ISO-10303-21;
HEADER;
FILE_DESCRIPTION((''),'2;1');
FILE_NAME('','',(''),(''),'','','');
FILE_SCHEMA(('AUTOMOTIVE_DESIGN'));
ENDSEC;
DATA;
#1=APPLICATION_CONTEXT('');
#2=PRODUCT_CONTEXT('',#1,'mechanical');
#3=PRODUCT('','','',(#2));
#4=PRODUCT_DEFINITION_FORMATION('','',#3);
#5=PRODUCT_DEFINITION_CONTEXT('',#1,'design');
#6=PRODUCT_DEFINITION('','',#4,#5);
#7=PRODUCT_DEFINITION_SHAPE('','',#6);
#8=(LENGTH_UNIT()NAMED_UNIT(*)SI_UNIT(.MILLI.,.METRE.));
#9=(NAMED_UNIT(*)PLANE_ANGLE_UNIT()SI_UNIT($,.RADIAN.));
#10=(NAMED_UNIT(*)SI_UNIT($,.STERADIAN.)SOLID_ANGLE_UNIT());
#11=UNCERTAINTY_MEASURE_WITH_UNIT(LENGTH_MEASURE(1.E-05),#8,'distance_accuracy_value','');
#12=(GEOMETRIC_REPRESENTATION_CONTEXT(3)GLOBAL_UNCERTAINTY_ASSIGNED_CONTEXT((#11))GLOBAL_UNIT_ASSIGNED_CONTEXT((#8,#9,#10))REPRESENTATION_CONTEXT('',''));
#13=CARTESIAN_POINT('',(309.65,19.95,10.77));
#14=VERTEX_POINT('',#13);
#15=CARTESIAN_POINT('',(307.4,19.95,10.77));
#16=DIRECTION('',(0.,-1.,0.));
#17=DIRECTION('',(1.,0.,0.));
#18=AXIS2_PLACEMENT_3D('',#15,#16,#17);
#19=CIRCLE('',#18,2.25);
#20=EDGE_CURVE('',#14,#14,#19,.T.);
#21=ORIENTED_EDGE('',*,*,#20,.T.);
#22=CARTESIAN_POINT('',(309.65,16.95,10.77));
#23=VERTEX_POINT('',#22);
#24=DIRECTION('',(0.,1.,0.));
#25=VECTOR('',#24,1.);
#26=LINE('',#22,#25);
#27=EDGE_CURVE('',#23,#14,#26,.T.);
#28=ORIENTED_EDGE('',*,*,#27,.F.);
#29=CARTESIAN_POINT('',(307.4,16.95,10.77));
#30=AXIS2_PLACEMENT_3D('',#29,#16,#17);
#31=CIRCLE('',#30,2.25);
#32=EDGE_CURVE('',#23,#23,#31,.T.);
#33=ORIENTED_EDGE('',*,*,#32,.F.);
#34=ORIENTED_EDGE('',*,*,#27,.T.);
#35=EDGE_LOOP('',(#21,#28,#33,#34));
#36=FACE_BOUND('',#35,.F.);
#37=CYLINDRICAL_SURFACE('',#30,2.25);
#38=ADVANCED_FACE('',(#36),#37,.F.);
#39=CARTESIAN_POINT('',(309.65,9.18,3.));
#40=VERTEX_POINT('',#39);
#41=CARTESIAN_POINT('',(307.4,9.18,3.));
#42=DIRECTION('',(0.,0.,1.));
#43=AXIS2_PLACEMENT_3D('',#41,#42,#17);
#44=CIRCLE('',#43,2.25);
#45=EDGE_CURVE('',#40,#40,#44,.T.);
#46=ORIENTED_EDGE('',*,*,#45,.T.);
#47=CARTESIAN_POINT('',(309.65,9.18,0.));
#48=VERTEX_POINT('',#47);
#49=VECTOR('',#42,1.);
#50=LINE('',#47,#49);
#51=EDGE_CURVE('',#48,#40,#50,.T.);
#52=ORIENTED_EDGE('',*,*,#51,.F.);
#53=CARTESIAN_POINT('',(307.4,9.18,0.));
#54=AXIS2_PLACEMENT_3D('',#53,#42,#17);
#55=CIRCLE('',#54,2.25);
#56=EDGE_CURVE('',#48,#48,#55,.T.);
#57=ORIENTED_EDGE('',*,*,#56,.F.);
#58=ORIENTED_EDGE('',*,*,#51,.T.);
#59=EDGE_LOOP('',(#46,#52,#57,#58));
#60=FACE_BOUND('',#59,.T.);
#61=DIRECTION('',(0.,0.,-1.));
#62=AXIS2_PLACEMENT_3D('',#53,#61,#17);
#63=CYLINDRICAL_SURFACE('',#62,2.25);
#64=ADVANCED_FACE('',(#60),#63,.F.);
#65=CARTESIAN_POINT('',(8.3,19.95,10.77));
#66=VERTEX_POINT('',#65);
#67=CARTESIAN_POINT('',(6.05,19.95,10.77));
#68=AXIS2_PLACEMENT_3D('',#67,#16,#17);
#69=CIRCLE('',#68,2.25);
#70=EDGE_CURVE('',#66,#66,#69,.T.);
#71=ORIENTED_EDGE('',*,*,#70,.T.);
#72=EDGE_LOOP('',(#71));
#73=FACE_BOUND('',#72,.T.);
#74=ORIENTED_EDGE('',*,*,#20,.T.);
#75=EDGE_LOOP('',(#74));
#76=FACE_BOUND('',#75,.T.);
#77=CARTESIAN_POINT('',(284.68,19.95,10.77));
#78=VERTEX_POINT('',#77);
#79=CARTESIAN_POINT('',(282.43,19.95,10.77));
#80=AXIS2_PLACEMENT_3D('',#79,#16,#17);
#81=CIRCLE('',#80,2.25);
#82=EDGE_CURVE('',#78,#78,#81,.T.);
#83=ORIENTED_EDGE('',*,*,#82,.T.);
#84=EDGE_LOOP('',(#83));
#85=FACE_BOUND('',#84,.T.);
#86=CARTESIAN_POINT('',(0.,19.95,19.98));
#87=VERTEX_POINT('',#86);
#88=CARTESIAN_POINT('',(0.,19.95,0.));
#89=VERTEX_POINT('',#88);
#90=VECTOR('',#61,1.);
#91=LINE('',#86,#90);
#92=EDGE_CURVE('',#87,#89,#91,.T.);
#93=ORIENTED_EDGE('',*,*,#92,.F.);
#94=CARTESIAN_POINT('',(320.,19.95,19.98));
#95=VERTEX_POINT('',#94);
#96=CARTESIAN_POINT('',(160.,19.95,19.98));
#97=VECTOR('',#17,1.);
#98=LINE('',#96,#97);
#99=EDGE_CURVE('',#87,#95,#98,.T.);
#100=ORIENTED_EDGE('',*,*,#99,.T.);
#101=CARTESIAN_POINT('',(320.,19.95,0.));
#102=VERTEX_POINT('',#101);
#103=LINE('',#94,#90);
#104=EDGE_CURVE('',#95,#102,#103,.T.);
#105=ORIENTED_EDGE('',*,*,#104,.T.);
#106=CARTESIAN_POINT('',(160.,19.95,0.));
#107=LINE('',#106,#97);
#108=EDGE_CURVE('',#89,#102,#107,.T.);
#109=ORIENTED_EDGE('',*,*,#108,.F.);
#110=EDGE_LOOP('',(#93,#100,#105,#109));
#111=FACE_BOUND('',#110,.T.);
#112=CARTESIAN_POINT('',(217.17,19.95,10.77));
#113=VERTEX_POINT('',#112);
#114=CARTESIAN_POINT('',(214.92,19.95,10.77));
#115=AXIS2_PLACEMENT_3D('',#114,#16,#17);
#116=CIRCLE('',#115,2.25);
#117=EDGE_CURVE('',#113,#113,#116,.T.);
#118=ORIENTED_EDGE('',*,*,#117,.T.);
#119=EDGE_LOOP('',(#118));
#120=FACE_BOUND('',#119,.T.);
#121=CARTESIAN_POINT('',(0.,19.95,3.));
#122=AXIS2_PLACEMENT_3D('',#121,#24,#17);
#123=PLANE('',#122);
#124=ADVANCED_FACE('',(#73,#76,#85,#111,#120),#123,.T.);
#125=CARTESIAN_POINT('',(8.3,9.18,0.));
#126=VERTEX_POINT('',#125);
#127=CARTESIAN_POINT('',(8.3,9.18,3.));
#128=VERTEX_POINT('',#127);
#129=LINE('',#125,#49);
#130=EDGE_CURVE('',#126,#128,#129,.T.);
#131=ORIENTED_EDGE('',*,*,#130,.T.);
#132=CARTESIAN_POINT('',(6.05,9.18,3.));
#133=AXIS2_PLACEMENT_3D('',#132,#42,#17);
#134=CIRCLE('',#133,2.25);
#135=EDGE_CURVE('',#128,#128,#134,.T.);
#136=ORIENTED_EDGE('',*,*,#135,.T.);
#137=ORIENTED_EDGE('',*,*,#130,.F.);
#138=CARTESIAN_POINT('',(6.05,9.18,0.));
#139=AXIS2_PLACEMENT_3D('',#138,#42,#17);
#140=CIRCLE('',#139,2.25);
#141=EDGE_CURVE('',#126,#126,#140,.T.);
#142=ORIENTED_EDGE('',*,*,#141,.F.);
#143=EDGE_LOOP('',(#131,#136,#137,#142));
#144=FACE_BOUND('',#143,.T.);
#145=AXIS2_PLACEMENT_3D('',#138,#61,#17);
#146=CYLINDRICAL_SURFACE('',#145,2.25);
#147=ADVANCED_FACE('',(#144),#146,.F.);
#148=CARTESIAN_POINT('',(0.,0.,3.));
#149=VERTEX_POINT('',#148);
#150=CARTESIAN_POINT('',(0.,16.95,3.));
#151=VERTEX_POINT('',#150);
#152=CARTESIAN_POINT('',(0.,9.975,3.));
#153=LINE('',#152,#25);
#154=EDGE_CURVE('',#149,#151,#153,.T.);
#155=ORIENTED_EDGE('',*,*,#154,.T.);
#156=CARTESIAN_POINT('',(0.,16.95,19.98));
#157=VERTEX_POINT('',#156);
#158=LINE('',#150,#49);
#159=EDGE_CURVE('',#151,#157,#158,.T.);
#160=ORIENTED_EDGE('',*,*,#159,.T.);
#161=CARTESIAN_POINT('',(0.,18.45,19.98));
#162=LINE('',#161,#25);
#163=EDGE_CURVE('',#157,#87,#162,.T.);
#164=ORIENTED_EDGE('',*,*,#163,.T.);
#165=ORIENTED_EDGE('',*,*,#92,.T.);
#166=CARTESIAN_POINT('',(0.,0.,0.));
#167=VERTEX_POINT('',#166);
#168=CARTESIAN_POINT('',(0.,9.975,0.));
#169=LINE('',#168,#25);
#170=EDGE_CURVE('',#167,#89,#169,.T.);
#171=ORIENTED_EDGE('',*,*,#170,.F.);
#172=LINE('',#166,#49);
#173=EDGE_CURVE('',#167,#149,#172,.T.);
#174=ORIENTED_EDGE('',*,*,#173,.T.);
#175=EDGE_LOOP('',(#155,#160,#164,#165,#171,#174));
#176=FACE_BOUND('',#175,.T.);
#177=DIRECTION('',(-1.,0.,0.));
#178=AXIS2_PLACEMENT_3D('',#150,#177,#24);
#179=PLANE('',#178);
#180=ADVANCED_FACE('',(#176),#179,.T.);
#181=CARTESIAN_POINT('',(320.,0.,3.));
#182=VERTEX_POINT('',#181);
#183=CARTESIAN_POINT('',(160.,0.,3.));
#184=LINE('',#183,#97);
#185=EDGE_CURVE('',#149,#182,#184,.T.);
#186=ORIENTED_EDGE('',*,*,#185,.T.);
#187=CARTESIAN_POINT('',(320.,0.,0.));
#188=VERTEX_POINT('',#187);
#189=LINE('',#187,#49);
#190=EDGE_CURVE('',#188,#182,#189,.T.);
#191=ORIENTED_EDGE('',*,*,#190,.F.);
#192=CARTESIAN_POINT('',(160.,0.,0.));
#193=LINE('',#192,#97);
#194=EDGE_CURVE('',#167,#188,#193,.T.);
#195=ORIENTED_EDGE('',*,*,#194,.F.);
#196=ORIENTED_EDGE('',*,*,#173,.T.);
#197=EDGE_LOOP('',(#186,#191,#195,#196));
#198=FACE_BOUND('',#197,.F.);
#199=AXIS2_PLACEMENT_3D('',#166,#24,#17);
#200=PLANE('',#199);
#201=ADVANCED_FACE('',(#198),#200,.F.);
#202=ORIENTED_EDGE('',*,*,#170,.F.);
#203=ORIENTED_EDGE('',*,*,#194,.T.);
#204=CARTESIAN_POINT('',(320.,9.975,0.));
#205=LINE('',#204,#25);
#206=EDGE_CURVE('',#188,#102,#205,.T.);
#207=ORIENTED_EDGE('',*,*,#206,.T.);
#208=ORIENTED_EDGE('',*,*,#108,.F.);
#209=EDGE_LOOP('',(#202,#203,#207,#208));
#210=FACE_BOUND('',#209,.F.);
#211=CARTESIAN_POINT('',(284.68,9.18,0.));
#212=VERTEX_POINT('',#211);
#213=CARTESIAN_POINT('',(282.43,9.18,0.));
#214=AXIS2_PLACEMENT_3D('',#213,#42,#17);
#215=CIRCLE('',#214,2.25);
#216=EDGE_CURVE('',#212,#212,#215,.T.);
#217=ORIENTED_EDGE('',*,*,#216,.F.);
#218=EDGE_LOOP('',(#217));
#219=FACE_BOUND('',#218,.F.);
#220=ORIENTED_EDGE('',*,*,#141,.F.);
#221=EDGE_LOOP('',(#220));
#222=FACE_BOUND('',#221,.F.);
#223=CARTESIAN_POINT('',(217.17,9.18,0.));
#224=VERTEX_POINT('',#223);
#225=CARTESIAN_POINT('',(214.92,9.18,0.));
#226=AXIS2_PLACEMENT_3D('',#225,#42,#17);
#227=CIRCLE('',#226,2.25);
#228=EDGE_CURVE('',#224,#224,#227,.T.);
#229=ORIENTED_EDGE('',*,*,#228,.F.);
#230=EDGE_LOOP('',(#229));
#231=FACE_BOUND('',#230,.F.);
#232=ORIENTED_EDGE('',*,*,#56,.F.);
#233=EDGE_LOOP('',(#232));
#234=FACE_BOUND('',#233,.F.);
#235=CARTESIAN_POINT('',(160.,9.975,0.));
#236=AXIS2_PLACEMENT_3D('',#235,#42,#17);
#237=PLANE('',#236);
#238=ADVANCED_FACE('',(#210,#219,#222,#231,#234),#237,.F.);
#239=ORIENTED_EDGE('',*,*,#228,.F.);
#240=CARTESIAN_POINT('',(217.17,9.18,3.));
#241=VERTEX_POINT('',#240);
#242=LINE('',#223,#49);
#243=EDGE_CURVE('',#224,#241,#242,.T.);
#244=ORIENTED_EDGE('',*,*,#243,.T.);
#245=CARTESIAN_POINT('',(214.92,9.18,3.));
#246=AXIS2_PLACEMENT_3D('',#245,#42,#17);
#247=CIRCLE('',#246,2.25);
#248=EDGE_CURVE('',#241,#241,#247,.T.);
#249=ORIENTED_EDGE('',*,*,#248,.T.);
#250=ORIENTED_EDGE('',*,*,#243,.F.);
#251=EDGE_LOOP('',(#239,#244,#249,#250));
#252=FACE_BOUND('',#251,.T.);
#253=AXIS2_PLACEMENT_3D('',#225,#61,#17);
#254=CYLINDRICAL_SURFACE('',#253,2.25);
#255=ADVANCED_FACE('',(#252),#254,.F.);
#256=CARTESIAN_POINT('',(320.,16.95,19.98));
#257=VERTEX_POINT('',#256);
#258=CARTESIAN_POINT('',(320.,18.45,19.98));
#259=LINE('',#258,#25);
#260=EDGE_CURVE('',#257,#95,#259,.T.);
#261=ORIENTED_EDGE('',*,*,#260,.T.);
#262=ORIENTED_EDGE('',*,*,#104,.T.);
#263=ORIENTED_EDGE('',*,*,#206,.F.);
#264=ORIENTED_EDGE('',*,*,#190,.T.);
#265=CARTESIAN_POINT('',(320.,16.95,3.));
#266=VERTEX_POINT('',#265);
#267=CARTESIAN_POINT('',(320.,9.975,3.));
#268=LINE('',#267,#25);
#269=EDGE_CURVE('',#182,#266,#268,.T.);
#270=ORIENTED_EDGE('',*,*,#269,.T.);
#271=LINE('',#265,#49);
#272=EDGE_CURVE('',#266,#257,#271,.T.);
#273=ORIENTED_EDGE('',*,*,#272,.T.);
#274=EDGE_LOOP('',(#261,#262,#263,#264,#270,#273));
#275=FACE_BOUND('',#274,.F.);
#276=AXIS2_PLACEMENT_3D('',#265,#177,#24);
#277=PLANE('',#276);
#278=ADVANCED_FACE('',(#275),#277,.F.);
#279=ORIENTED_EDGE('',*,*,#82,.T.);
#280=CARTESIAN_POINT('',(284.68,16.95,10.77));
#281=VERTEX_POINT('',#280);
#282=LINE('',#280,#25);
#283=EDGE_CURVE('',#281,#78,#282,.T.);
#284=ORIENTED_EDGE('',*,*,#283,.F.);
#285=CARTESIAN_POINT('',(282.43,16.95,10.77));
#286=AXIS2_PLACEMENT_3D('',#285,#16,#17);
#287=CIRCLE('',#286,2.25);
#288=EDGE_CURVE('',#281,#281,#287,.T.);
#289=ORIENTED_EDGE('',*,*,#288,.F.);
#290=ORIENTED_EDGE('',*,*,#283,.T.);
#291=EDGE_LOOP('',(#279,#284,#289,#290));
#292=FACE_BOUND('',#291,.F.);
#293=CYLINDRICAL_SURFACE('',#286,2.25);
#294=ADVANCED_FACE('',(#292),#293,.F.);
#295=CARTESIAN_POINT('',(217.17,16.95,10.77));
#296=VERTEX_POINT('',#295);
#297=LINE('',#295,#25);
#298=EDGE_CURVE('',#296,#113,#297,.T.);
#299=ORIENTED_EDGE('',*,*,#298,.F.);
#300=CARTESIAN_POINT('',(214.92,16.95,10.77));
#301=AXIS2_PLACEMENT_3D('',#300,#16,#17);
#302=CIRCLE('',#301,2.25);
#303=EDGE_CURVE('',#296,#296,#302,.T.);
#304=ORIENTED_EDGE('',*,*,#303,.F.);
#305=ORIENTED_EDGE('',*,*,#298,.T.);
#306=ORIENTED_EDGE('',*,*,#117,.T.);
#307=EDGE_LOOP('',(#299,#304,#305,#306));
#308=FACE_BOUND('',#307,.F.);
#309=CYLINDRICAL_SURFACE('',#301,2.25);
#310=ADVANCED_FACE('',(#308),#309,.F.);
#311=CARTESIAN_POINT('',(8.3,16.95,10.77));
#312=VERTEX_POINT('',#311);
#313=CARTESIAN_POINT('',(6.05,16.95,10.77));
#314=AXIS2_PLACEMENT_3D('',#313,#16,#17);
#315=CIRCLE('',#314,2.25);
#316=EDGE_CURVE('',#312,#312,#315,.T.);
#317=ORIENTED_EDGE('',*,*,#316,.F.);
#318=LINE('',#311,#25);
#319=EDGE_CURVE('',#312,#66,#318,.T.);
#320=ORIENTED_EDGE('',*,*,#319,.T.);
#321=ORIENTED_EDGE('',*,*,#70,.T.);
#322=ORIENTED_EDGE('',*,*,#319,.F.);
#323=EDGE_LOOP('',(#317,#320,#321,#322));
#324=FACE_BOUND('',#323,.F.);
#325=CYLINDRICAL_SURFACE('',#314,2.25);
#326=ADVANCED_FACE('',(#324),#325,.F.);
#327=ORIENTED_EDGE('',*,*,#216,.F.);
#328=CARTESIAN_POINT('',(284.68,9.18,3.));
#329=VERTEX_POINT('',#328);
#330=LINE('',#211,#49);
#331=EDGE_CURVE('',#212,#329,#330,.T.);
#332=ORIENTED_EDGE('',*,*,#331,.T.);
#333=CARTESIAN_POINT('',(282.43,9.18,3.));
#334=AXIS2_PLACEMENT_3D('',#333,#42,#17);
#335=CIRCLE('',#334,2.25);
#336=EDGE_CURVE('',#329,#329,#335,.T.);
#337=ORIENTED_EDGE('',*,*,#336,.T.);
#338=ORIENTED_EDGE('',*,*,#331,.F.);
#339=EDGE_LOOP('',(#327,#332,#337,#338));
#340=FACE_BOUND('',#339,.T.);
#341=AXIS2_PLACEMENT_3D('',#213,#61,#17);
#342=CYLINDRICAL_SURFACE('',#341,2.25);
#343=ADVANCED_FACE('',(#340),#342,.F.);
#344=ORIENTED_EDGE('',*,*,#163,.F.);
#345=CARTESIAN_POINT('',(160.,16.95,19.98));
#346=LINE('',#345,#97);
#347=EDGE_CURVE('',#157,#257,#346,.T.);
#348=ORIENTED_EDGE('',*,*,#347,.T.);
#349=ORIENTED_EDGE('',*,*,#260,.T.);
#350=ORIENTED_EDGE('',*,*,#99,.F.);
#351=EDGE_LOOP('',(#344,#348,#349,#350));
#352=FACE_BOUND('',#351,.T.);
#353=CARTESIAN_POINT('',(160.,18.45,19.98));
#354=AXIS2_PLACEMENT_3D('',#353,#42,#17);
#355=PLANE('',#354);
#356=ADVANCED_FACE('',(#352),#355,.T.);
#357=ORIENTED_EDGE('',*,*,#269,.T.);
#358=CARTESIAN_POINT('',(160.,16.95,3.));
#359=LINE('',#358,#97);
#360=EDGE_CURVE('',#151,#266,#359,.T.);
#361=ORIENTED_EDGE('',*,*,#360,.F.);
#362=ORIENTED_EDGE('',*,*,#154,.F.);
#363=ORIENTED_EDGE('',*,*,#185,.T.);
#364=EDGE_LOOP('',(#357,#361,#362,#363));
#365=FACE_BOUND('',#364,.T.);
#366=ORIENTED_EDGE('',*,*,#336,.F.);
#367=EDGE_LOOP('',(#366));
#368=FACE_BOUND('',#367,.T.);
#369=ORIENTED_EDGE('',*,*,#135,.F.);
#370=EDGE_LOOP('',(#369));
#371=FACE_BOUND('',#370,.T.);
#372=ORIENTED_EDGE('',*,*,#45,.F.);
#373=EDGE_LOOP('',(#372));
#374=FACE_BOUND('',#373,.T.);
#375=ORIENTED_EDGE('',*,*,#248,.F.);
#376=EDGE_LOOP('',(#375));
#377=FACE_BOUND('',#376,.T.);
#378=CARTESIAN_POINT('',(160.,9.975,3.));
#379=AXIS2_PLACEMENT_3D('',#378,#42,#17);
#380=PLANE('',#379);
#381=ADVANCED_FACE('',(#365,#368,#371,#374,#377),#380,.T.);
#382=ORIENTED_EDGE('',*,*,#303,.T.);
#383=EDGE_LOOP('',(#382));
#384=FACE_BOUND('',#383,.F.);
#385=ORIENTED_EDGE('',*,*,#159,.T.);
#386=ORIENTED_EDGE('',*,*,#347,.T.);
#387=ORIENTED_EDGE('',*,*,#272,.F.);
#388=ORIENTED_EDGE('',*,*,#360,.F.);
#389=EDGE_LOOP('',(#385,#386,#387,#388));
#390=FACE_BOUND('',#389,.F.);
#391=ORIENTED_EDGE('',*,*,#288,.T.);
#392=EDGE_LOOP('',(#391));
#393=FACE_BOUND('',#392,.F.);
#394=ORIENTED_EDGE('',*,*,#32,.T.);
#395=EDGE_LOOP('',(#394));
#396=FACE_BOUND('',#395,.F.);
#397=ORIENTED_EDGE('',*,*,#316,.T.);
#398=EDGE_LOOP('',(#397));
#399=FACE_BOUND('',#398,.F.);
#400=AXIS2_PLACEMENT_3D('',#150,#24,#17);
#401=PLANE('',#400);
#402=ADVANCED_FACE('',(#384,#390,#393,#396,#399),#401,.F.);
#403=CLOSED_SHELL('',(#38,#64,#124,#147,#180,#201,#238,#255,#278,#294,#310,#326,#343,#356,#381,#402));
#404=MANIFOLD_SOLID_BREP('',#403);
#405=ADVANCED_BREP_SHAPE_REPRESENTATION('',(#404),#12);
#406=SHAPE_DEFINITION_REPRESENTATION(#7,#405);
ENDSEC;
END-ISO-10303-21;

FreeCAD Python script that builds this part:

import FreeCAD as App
import Part
import Sketcher
Q = App.Units.Quantity


def add_polygon(sketch, points):
    """Adds a closed chain of lines whose ends are joined by coincident constraints."""
    first, n = sketch.GeometryCount, len(points)
    for a, b in zip(points, points[1:] + points[:1]):
        sketch.addGeometry(Part.LineSegment(App.Vector(*a, 0), App.Vector(*b, 0)), False)
    for i in range(n):
        sketch.addConstraint(Sketcher.Constraint("Coincident", first + i, 2, first + (i + 1) % n, 1))

doc = App.newDocument("Part")
body = doc.addObject("PartDesign::Body", "Body")

sketch1 = body.newObject("Sketcher::SketchObject", "Sketch")
sketch1.AttachmentSupport = (doc.getObject("XY_Plane"), [""])
sketch1.MapMode = "FlatFace"
add_polygon(sketch1, [(0, 19.95), (0, 0), (320, 0), (320, 19.95)])
sketch1.addGeometry(Part.Circle(App.Vector(6.05, 9.18, 0), App.Vector(0, 0, 1), 2.25), False)
sketch1.addGeometry(Part.Circle(App.Vector(214.92, 9.18, 0), App.Vector(0, 0, 1), 2.25), False)
sketch1.addGeometry(Part.Circle(App.Vector(282.43, 9.18, 0), App.Vector(0, 0, 1), 2.25), False)
sketch1.addGeometry(Part.Circle(App.Vector(307.4, 9.18, 0), App.Vector(0, 0, 1), 2.25), False)
sketch1.addConstraint(Sketcher.Constraint("Vertical", 0))
sketch1.addConstraint(Sketcher.Constraint("Horizontal", 1))
sketch1.addConstraint(Sketcher.Constraint("Vertical", 2))
sketch1.addConstraint(Sketcher.Constraint("Horizontal", 3))
sketch1.addConstraint(Sketcher.Constraint("Coincident", 0, 2, -1, 1))
sketch1.addConstraint(Sketcher.Constraint("Equal", 4, 5))
sketch1.addConstraint(Sketcher.Constraint("Equal", 5, 6))
sketch1.addConstraint(Sketcher.Constraint("Equal", 6, 7))
sketch1.addConstraint(Sketcher.Constraint("Horizontal", 4, 3, 5, 3))
sketch1.addConstraint(Sketcher.Constraint("Horizontal", 5, 3, 6, 3))
sketch1.addConstraint(Sketcher.Constraint("Horizontal", 6, 3, 7, 3))
sketch1.addConstraint(Sketcher.Constraint("Diameter", 4, Q("4.5 mm")))
sketch1.addConstraint(Sketcher.Constraint("DistanceX", 1, 1, 1, 2, Q("320 mm")))
sketch1.addConstraint(Sketcher.Constraint("DistanceY", 0, 2, 0, 1, Q("19.95 mm")))
sketch1.addConstraint(Sketcher.Constraint("DistanceX", -1, 1, 7, 3, Q("307.4 mm")))
sketch1.addConstraint(Sketcher.Constraint("DistanceX", -1, 1, 4, 3, Q("6.05 mm")))
sketch1.addConstraint(Sketcher.Constraint("DistanceY", -1, 1, 4, 3, Q("9.18 mm")))
sketch1.addConstraint(Sketcher.Constraint("DistanceX", -1, 1, 5, 3, Q("214.92 mm")))
sketch1.addConstraint(Sketcher.Constraint("DistanceX", -1, 1, 6, 3, Q("282.43 mm")))
pad1 = body.newObject("PartDesign::Pad", "Pad")
pad1.Profile = sketch1
pad1.Length = 3

sketch2 = body.newObject("Sketcher::SketchObject", "Sketch001")
sketch2.AttachmentSupport = (doc.getObject("XY_Plane"), [""])
sketch2.MapMode = "FlatFace"
sketch2.AttachmentOffset = App.Placement(App.Vector(0, 0, 3), App.Rotation())
add_polygon(sketch2, [(0, 19.95), (0, 16.95), (320, 16.95), (320, 19.95)])
sketch2.addConstraint(Sketcher.Constraint("Vertical", 0))
sketch2.addConstraint(Sketcher.Constraint("Horizontal", 1))
sketch2.addConstraint(Sketcher.Constraint("Vertical", 2))
sketch2.addConstraint(Sketcher.Constraint("Horizontal", 3))
sketch2.addConstraint(Sketcher.Constraint("PointOnObject", 0, 2, -2))
sketch2.addConstraint(Sketcher.Constraint("DistanceX", 1, 1, 1, 2, Q("320 mm")))
sketch2.addConstraint(Sketcher.Constraint("DistanceY", 0, 2, 0, 1, Q("3 mm")))
sketch2.addConstraint(Sketcher.Constraint("DistanceY", -1, 1, 0, 2, Q("16.95 mm")))
pad2 = body.newObject("PartDesign::Pad", "Pad001")
pad2.Profile = sketch2
pad2.Length = 16.98

sketch3 = body.newObject("Sketcher::SketchObject", "Sketch002")
sketch3.AttachmentSupport = (doc.getObject("XZ_Plane"), [""])
sketch3.MapMode = "FlatFace"
sketch3.AttachmentOffset = App.Placement(App.Vector(0, 0, -16.95), App.Rotation())
sketch3.addGeometry(Part.Circle(App.Vector(307.4, 10.77, 0), App.Vector(0, 0, 1), 2.25), False)
sketch3.addGeometry(Part.Circle(App.Vector(282.43, 10.77, 0), App.Vector(0, 0, 1), 2.25), False)
sketch3.addGeometry(Part.Circle(App.Vector(214.92, 10.77, 0), App.Vector(0, 0, 1), 2.25), False)
sketch3.addGeometry(Part.Circle(App.Vector(6.05, 10.77, 0), App.Vector(0, 0, 1), 2.25), False)
sketch3.addConstraint(Sketcher.Constraint("Equal", 0, 1))
sketch3.addConstraint(Sketcher.Constraint("Equal", 1, 2))
sketch3.addConstraint(Sketcher.Constraint("Equal", 2, 3))
sketch3.addConstraint(Sketcher.Constraint("Horizontal", 0, 3, 1, 3))
sketch3.addConstraint(Sketcher.Constraint("Horizontal", 1, 3, 2, 3))
sketch3.addConstraint(Sketcher.Constraint("Horizontal", 2, 3, 3, 3))
sketch3.addConstraint(Sketcher.Constraint("Diameter", 0, Q("4.5 mm")))
sketch3.addConstraint(Sketcher.Constraint("DistanceX", -1, 1, 0, 3, Q("307.4 mm")))
sketch3.addConstraint(Sketcher.Constraint("DistanceY", -1, 1, 0, 3, Q("10.77 mm")))
sketch3.addConstraint(Sketcher.Constraint("DistanceX", -1, 1, 1, 3, Q("282.43 mm")))
sketch3.addConstraint(Sketcher.Constraint("DistanceX", -1, 1, 2, 3, Q("214.92 mm")))
sketch3.addConstraint(Sketcher.Constraint("DistanceX", -1, 1, 3, 3, Q("6.05 mm")))
pocket1 = body.newObject("PartDesign::Pocket", "Pocket")
pocket1.Profile = sketch3
pocket1.Type = "ThroughAll"

doc.recompute()
